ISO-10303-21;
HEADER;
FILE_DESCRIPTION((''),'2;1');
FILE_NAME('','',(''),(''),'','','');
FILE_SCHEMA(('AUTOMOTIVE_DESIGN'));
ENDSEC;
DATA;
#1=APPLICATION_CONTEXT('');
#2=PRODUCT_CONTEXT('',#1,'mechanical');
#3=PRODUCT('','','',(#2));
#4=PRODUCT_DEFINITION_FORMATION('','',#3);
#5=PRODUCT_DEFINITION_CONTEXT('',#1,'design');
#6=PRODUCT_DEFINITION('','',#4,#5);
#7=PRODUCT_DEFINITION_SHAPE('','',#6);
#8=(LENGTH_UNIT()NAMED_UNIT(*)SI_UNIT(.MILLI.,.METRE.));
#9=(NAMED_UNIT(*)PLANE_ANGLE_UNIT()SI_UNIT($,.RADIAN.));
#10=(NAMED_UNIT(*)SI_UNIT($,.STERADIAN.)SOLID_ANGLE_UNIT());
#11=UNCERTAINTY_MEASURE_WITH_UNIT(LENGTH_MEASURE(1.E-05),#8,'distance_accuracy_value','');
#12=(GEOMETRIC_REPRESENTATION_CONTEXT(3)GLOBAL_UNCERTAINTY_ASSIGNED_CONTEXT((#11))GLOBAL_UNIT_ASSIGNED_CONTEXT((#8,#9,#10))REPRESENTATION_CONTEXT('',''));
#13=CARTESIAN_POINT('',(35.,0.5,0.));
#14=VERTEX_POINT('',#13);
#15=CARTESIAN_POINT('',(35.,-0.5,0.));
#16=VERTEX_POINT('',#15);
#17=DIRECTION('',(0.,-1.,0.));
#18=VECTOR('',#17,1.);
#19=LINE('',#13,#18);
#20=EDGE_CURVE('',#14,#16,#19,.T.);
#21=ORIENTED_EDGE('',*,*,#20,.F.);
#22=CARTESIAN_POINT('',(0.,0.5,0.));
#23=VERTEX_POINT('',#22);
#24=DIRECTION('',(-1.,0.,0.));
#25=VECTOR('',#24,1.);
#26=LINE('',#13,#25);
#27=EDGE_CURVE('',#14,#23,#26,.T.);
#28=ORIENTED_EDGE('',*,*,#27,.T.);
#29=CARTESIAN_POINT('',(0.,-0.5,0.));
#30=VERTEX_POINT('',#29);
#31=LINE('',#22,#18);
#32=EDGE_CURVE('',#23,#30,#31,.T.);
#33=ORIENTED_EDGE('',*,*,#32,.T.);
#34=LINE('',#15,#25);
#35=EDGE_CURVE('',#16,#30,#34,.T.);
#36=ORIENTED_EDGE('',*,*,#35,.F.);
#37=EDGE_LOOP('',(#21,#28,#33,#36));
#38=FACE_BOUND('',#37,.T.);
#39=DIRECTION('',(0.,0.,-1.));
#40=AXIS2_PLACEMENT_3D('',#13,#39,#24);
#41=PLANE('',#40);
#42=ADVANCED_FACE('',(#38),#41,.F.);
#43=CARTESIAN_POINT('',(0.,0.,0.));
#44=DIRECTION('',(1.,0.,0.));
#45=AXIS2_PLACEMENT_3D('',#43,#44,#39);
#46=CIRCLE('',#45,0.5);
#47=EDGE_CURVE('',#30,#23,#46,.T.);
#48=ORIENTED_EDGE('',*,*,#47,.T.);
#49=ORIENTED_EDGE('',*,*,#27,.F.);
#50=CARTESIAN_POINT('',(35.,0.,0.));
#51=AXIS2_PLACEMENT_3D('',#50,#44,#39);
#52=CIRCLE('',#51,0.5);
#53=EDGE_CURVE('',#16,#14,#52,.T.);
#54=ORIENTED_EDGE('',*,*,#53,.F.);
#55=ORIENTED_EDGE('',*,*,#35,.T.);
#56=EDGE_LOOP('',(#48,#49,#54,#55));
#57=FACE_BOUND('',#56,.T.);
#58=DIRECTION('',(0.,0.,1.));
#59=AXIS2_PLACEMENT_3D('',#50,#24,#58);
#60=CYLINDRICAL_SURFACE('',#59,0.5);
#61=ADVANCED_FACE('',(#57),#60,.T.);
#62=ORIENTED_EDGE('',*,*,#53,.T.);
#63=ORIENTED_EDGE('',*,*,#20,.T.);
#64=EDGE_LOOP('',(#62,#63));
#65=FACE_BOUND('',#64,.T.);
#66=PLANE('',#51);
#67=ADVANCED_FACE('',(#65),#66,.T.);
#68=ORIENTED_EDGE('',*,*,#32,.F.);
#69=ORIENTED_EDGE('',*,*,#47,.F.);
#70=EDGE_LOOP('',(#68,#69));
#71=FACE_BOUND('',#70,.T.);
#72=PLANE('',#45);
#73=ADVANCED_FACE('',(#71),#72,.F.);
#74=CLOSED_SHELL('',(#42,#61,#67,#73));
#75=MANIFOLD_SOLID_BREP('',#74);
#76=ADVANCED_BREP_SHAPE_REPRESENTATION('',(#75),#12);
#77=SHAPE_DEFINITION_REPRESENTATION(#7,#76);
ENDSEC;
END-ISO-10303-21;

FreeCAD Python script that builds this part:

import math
import FreeCAD as App
import Part
import Sketcher

V = App.Vector
Q = App.Units.Quantity

doc = App.newDocument("Part")
body = doc.addObject("PartDesign::Body", "Body")

sketch1 = body.newObject("Sketcher::SketchObject", "Sketch")
sketch1.AttachmentSupport = (doc.getObject("YZ_Plane"), [""])
sketch1.MapMode = "FlatFace"
sketch1.addGeometry([
    Part.LineSegment(V(0.5, 0, 0), V(-0.5, 0, 0)),
    Part.ArcOfCircle(Part.Circle(V(0, 0, 0), V(0, 0, 1), 0.5), math.radians(180), math.radians(360)),
], False)
sketch1.addConstraint([
    Sketcher.Constraint("Coincident", 0, 1, 1, 2),
    Sketcher.Constraint("Coincident", 1, 1, 0, 2),
    Sketcher.Constraint("Horizontal", 0),
    Sketcher.Constraint("Coincident", 1, 3, -1, 1),
    Sketcher.Constraint("PointOnObject", 0, 1, -1),
    Sketcher.Constraint("Radius", 1, Q("0.5 mm")),
])
pad1 = body.newObject("PartDesign::Pad", "Pad")
pad1.Profile = sketch1
pad1.Length = 35

doc.recompute()
